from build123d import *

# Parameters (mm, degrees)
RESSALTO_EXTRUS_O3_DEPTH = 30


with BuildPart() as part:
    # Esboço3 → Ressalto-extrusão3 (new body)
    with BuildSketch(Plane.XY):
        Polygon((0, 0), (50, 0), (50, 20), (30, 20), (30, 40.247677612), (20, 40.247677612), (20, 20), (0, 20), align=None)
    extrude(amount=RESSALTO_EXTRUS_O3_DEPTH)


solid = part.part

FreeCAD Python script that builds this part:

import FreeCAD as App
import Part
import Sketcher


def add_polygon(sketch, points):
    """Adds a closed chain of lines whose ends are joined by coincident constraints."""
    first, n = sketch.GeometryCount, len(points)
    for a, b in zip(points, points[1:] + points[:1]):
        sketch.addGeometry(Part.LineSegment(App.Vector(*a, 0), App.Vector(*b, 0)), False)
    for i in range(n):
        sketch.addConstraint(Sketcher.Constraint("Coincident", first + i, 2, first + (i + 1) % n, 1))

doc = App.newDocument("Part")
body = doc.addObject("PartDesign::Body", "Body")

sketch1 = body.newObject("Sketcher::SketchObject", "Sketch")
sketch1.AttachmentSupport = (doc.getObject("XY_Plane"), [""])
sketch1.MapMode = "FlatFace"
add_polygon(sketch1, [(0, 0), (50, 0), (50, 20), (30, 20), (30, 40), (20, 40), (20, 20), (0, 20)])
sketch1.addConstraint([
    Sketcher.Constraint("Horizontal", 0),
    Sketcher.Constraint("Vertical", 1),
    Sketcher.Constraint("Horizontal", 2),
    Sketcher.Constraint("Vertical", 3),
    Sketcher.Constraint("Horizontal", 4),
    Sketcher.Constraint("Vertical", 5),
    Sketcher.Constraint("Horizontal", 6),
    Sketcher.Constraint("Vertical", 7),
    Sketcher.Constraint("Coincident", 7, 2, -1, 1),
    Sketcher.Constraint("Horizontal", 2, 2, 5, 2),
    Sketcher.Constraint("Equal", 2, 6),
    Sketcher.Constraint("Equal", 6, 1),
    Sketcher.Constraint("DistanceX", 0, 1, 0, 2, 50.0),
    Sketcher.Constraint("DistanceX", 2, 2, 2, 1, 20.0),
    Sketcher.Constraint("DistanceY", 3, 1, 3, 2, 20.247678),
])
pad1 = body.newObject("PartDesign::Pad", "Pad")
pad1.Profile = sketch1
pad1.Length = 30

doc.recompute()
